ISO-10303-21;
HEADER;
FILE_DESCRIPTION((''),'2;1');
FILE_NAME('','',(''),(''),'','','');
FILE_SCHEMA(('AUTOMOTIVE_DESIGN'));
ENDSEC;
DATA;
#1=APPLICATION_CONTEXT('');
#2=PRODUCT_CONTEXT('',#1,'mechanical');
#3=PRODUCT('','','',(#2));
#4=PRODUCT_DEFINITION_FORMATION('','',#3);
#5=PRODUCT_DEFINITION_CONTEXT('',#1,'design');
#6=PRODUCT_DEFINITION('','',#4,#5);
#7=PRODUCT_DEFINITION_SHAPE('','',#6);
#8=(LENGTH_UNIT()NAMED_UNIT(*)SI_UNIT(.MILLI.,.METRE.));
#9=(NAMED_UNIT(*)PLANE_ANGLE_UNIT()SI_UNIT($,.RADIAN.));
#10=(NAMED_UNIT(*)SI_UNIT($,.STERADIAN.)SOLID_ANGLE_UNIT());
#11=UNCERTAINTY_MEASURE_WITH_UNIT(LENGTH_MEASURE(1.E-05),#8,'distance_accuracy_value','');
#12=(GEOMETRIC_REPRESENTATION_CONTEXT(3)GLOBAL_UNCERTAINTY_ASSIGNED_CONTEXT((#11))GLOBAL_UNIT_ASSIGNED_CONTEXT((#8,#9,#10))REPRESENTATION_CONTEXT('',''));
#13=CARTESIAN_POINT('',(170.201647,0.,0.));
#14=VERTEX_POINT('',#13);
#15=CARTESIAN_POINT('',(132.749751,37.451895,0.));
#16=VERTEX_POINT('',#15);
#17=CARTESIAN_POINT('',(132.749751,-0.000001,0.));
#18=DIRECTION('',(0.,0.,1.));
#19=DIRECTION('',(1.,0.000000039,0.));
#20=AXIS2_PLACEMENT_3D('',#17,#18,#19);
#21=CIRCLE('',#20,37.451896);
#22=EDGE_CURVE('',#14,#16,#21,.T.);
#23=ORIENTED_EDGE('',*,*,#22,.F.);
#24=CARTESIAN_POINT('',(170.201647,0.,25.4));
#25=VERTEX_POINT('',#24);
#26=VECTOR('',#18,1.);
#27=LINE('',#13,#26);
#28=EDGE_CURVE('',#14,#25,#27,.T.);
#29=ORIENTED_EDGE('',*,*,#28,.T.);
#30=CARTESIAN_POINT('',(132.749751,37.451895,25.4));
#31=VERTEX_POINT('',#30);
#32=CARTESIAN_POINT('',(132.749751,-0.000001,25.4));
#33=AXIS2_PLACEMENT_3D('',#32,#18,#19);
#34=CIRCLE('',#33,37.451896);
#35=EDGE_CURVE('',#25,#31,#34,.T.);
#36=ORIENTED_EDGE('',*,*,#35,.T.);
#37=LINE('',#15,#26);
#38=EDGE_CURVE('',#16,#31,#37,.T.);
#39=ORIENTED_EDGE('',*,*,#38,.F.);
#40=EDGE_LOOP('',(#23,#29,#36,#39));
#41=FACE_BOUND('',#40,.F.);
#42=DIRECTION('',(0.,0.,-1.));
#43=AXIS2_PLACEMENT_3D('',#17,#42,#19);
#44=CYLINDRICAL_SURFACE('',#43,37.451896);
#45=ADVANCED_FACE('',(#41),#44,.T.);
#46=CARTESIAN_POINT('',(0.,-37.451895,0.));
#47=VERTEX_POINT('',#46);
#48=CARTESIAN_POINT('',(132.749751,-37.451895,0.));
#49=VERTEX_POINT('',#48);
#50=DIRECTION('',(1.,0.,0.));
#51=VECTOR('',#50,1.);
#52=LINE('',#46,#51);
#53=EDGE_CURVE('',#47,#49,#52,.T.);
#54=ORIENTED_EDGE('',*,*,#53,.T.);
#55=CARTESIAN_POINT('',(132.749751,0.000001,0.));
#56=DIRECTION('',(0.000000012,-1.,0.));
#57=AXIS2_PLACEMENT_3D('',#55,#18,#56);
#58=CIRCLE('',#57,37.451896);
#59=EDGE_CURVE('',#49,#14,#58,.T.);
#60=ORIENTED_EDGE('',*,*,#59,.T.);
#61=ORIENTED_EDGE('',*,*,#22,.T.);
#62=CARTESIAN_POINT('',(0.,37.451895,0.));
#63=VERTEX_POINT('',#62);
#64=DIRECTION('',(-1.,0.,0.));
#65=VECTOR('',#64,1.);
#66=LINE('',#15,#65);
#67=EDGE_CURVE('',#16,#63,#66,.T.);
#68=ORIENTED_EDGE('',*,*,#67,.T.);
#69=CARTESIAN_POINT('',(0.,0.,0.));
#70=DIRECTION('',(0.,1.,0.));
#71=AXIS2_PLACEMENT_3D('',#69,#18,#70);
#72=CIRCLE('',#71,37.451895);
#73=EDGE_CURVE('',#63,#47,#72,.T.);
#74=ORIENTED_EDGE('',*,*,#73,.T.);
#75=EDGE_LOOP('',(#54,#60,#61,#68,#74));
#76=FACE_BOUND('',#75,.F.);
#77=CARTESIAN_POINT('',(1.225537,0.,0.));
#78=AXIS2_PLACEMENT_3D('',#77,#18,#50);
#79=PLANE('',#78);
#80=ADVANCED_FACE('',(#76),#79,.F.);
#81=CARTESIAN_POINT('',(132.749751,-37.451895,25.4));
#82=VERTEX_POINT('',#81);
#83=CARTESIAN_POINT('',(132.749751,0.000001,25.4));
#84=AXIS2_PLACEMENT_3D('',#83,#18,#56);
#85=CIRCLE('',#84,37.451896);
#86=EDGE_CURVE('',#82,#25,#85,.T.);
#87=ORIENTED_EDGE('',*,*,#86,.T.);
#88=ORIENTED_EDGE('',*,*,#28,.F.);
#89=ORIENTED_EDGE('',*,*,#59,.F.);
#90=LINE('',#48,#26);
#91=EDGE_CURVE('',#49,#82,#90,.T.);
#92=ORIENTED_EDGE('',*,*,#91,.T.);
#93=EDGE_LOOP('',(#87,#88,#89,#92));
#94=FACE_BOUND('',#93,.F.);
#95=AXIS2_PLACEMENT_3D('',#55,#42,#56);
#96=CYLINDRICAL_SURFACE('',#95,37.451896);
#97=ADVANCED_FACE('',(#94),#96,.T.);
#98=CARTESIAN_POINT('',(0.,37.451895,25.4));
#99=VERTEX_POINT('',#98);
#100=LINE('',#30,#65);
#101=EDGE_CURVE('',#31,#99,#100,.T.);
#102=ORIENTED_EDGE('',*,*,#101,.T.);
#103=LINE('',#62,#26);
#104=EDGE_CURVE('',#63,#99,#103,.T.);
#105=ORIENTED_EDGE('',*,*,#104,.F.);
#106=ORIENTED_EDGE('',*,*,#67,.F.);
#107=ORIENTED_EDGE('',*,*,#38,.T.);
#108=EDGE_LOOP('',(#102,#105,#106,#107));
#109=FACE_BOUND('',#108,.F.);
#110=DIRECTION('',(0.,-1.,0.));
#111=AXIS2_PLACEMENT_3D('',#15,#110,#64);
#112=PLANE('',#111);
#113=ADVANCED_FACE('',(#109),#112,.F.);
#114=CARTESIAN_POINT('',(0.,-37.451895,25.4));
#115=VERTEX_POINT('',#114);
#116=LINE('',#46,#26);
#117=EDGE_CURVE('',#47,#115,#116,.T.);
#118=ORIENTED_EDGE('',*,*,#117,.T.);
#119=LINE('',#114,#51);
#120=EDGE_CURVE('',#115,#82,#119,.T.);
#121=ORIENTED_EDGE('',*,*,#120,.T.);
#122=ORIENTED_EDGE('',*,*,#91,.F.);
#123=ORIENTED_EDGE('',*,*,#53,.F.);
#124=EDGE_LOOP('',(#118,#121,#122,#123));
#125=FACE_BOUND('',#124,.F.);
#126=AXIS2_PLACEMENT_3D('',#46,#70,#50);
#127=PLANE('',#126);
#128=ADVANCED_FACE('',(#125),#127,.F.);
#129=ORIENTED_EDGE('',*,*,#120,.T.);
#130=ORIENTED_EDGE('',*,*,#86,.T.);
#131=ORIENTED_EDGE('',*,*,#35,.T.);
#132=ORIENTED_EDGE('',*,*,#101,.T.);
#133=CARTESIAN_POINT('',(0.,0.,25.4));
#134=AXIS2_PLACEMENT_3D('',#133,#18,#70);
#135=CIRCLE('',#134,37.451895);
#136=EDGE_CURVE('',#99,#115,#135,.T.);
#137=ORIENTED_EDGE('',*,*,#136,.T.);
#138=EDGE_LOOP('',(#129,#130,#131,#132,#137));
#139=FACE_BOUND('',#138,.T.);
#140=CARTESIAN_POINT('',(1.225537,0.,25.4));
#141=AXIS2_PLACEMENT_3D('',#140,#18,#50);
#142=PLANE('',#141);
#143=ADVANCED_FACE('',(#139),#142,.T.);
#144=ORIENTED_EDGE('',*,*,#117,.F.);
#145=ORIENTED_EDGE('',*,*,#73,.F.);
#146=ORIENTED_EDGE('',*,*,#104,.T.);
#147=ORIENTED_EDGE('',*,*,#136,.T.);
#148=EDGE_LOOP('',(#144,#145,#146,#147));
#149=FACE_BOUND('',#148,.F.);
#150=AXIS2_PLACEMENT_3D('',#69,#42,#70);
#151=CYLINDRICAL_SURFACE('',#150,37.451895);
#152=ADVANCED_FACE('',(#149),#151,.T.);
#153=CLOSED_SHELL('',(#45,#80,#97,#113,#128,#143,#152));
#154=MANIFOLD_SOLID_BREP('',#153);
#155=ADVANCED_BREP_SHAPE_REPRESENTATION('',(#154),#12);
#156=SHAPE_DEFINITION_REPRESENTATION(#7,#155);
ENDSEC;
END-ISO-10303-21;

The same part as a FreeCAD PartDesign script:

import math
import FreeCAD as App
import Part
import Sketcher

V = App.Vector
Q = App.Units.Quantity

doc = App.newDocument("Part")
body = doc.addObject("PartDesign::Body", "Body")

# Sketch on XY plane
sketch1 = body.newObject("Sketcher::SketchObject", "Sketch")
sketch1.AttachmentSupport = (doc.getObject("XY_Plane"), [""])
sketch1.MapMode = "FlatFace"
sketch1.addGeometry(Part.ArcOfCircle(Part.Circle(V(0, 0, 0), V(0, 0, 1), 37.451895), math.radians(90), math.radians(270)), False)
sketch1.addGeometry(Part.LineSegment(V(0, -37.451895, 0), V(132.749751, -37.451895, 0)), False)
sketch1.addGeometry(Part.ArcOfCircle(Part.Circle(V(132.749751, 0.000001, 0), V(0, 0, 1), 37.451896), math.radians(-89.999999), math.radians(-0.000002)), False)
sketch1.addGeometry(Part.ArcOfCircle(Part.Circle(V(132.749751, -0.000001, 0), V(0, 0, 1), 37.451896), math.radians(0.000002), math.radians(89.999999)), False)
sketch1.addGeometry(Part.LineSegment(V(132.749751, 37.451895, 0), V(0, 37.451895, 0)), False)
sketch1.addConstraint(Sketcher.Constraint("Tangent", 0, 2, 1, 1))
sketch1.addConstraint(Sketcher.Constraint("Tangent", 1, 2, 2, 1))
sketch1.addConstraint(Sketcher.Constraint("Tangent", 2, 2, 3, 1))
sketch1.addConstraint(Sketcher.Constraint("Tangent", 3, 2, 4, 1))
sketch1.addConstraint(Sketcher.Constraint("Tangent", 4, 2, 0, 1))
sketch1.addConstraint(Sketcher.Constraint("Horizontal", 1))
sketch1.addConstraint(Sketcher.Constraint("Horizontal", 4))
sketch1.addConstraint(Sketcher.Constraint("Coincident", 0, 3, -1, 1))
sketch1.addConstraint(Sketcher.Constraint("Equal", 0, 2))
sketch1.addConstraint(Sketcher.Constraint("PointOnObject", 2, 2, -1))
sketch1.addConstraint(Sketcher.Constraint("Radius", 0, Q("37.451895 mm")))
sketch1.addConstraint(Sketcher.Constraint("DistanceX", 1, 1, 1, 2, Q("132.749751 mm")))
pad1 = body.newObject("PartDesign::Pad", "Pad")
pad1.Profile = sketch1
pad1.Length = Q("1 in")

doc.recompute()
